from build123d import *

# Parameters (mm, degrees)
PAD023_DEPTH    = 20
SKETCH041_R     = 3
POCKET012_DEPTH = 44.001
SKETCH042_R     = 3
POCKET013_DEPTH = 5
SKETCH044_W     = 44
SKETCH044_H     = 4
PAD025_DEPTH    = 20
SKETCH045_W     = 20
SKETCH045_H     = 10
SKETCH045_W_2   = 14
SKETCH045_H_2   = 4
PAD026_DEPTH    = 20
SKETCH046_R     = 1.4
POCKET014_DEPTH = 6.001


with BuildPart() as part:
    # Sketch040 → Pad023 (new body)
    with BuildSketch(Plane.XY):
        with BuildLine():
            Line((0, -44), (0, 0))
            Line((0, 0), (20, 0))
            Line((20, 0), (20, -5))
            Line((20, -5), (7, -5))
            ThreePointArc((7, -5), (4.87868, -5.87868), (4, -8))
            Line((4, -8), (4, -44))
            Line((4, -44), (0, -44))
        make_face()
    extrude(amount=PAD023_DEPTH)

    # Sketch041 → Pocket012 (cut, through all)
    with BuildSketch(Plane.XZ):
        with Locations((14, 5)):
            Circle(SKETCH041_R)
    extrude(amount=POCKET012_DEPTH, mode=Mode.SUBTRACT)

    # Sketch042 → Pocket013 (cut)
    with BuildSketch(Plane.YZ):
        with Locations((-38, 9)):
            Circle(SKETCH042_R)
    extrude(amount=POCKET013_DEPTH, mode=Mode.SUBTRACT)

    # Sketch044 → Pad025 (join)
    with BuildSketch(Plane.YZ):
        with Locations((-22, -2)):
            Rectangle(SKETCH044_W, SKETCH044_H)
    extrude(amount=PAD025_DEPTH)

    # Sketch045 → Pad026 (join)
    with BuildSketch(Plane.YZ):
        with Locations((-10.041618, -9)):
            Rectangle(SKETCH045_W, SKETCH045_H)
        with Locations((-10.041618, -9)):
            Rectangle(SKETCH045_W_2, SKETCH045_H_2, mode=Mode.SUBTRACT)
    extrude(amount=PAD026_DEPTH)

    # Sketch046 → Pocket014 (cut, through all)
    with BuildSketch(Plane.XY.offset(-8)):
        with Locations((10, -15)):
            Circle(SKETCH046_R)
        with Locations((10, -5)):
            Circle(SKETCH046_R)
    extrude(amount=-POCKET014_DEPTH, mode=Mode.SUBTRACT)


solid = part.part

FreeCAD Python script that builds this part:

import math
import FreeCAD as App
import Part
import Sketcher

V = App.Vector

doc = App.newDocument("Part")
body = doc.addObject("PartDesign::Body", "Body")

sketch1 = body.newObject("Sketcher::SketchObject", "Sketch")
sketch1.AttachmentSupport = (doc.getObject("XY_Plane"), [""])
sketch1.MapMode = "FlatFace"
sketch1.addGeometry([
    Part.LineSegment(V(0, 0, 0), V(0, -44, 0)),
    Part.LineSegment(V(0, -44, 0), V(4, -44, 0)),
    Part.LineSegment(V(4, -44, 0), V(4, -8, 0)),
    Part.ArcOfCircle(Part.Circle(V(7, -8, 0), V(0, 0, 1), 3), math.radians(90), math.radians(180)),
    Part.LineSegment(V(7, -5, 0), V(20, -5, 0)),
    Part.LineSegment(V(20, -5, 0), V(20, 0, 0)),
    Part.LineSegment(V(20, 0, 0), V(0, 0, 0)),
], False)
sketch1.addConstraint([
    Sketcher.Constraint("Coincident", 0, 2, 1, 1),
    Sketcher.Constraint("Coincident", 1, 2, 2, 1),
    Sketcher.Constraint("Tangent", 2, 2, 3, 2),
    Sketcher.Constraint("Tangent", 3, 1, 4, 1),
    Sketcher.Constraint("Coincident", 4, 2, 5, 1),
    Sketcher.Constraint("Coincident", 5, 2, 6, 1),
    Sketcher.Constraint("Coincident", 6, 2, 0, 1),
    Sketcher.Constraint("Vertical", 0),
    Sketcher.Constraint("Horizontal", 1),
    Sketcher.Constraint("Vertical", 2),
    Sketcher.Constraint("Horizontal", 4),
    Sketcher.Constraint("Vertical", 5),
    Sketcher.Constraint("Horizontal", 6),
    Sketcher.Constraint("Coincident", 6, 2, -1, 1),
    Sketcher.Constraint("Radius", 3, 3.000001),
    Sketcher.Constraint("DistanceX", 1, 1, 1, 2, 4.0),
    Sketcher.Constraint("DistanceX", 4, 1, 4, 2, 13.0),
    Sketcher.Constraint("DistanceY", 0, 2, 0, 1, 44.0),
    Sketcher.Constraint("DistanceY", 2, 1, 2, 2, 36.0),
])
pad1 = body.newObject("PartDesign::Pad", "Pad")
pad1.Profile = sketch1
pad1.Length = 20

sketch2 = body.newObject("Sketcher::SketchObject", "Sketch001")
sketch2.AttachmentSupport = (doc.getObject("XZ_Plane"), [""])
sketch2.MapMode = "FlatFace"
sketch2.addGeometry(Part.Circle(V(14, 5, 0), V(0, 0, 1), 3), False)
sketch2.addConstraint([
    Sketcher.Constraint("Diameter", 0, 6.0),
    Sketcher.Constraint("DistanceX", -1, 1, 0, 3, 14.0),
    Sketcher.Constraint("DistanceY", -1, 1, 0, 3, 5.0),
])
pocket1 = body.newObject("PartDesign::Pocket", "Pocket")
pocket1.Profile = sketch2
pocket1.Type = "ThroughAll"
pocket1.Reversed = True

sketch3 = body.newObject("Sketcher::SketchObject", "Sketch002")
sketch3.AttachmentSupport = (doc.getObject("YZ_Plane"), [""])
sketch3.MapMode = "FlatFace"
sketch3.addGeometry(Part.Circle(V(-38, 9, 0), V(0, 0, 1), 3), False)
sketch3.addConstraint([
    Sketcher.Constraint("Diameter", 0, 6.0),
    Sketcher.Constraint("DistanceX", 0, 3, -1, 1, 38.0),
    Sketcher.Constraint("DistanceY", -1, 1, 0, 3, 9.0),
])
pocket2 = body.newObject("PartDesign::Pocket", "Pocket001")
pocket2.Profile = sketch3
pocket2.Length = 5
pocket2.Reversed = True

sketch4 = body.newObject("Sketcher::SketchObject", "Sketch003")
sketch4.AttachmentSupport = (doc.getObject("YZ_Plane"), [""])
sketch4.MapMode = "FlatFace"
sketch4.addGeometry([
    Part.LineSegment(V(-44, 0, 0), V(-44, -4, 0)),
    Part.LineSegment(V(-44, -4, 0), V(0, -4, 0)),
    Part.LineSegment(V(0, -4, 0), V(0, 0, 0)),
    Part.LineSegment(V(0, 0, 0), V(-44, 0, 0)),
], False)
sketch4.addConstraint([
    Sketcher.Constraint("Coincident", 0, 2, 1, 1),
    Sketcher.Constraint("Coincident", 1, 2, 2, 1),
    Sketcher.Constraint("Coincident", 2, 2, 3, 1),
    Sketcher.Constraint("Coincident", 3, 2, 0, 1),
    Sketcher.Constraint("Vertical", 0),
    Sketcher.Constraint("Horizontal", 1),
    Sketcher.Constraint("Vertical", 2),
    Sketcher.Constraint("Horizontal", 3),
    Sketcher.Constraint("Coincident", 2, 2, -1, 1),
    Sketcher.Constraint("DistanceX", 1, 1, 1, 2, 44.0),
    Sketcher.Constraint("DistanceY", 0, 2, 0, 1, 4.0),
])
pad2 = body.newObject("PartDesign::Pad", "Pad001")
pad2.Profile = sketch4
pad2.Length = 20

sketch5 = body.newObject("Sketcher::SketchObject", "Sketch004")
sketch5.AttachmentSupport = (doc.getObject("YZ_Plane"), [""])
sketch5.MapMode = "FlatFace"
sketch5.addGeometry([
    Part.LineSegment(V(-20, -4, 0), V(-20, -14, 0)),
    Part.LineSegment(V(-20, -14, 0), V(0, -14, 0)),
    Part.LineSegment(V(0, -14, 0), V(0, -4, 0)),
    Part.LineSegment(V(0, -4, 0), V(-20, -4, 0)),
    Part.LineSegment(V(-3, -11, 0), V(-17, -11, 0)),
    Part.LineSegment(V(-17, -11, 0), V(-17, -7, 0)),
    Part.LineSegment(V(-17, -7, 0), V(-3, -7, 0)),
    Part.LineSegment(V(-3, -7, 0), V(-3, -11, 0)),
], False)
sketch5.addConstraint([
    Sketcher.Constraint("Coincident", 0, 2, 1, 1),
    Sketcher.Constraint("Coincident", 1, 2, 2, 1),
    Sketcher.Constraint("Coincident", 2, 2, 3, 1),
    Sketcher.Constraint("Coincident", 3, 2, 0, 1),
    Sketcher.Constraint("Coincident", 4, 2, 5, 1),
    Sketcher.Constraint("Coincident", 5, 2, 6, 1),
    Sketcher.Constraint("Coincident", 6, 2, 7, 1),
    Sketcher.Constraint("Coincident", 7, 2, 4, 1),
    Sketcher.Constraint("Vertical", 0),
    Sketcher.Constraint("Horizontal", 1),
    Sketcher.Constraint("Vertical", 2),
    Sketcher.Constraint("Horizontal", 3),
    Sketcher.Constraint("Horizontal", 4),
    Sketcher.Constraint("Vertical", 5),
    Sketcher.Constraint("Horizontal", 6),
    Sketcher.Constraint("Vertical", 7),
    Sketcher.Constraint("DistanceX", 1, 1, 1, 2, 20.0),
    Sketcher.Constraint("DistanceX", 4, 2, 4, 1, 14.0),
    Sketcher.Constraint("DistanceY", 0, 2, 0, 1, 10.0),
    Sketcher.Constraint("DistanceY", 5, 1, 5, 2, 4.0),
    Sketcher.Constraint("DistanceY", 0, 2, -1, 1, 14.0),
    Sketcher.Constraint("DistanceY", 4, 2, -1, 1, 11.0),
    Sketcher.Constraint("DistanceX", 0, 2, 4, 2, 3.0),
    Sketcher.Constraint("DistanceX", 1, 2, -1, 1, 0.041618),
])
pad3 = body.newObject("PartDesign::Pad", "Pad002")
pad3.Profile = sketch5
pad3.Length = 20

sketch6 = body.newObject("Sketcher::SketchObject", "Sketch005")
sketch6.AttachmentSupport = (doc.getObject("XY_Plane"), [""])
sketch6.MapMode = "FlatFace"
sketch6.AttachmentOffset = App.Placement(V(0, 0, -8), App.Rotation())
sketch6.addGeometry([
    Part.Circle(V(10, -15, 0), V(0, 0, 1), 1.4),
    Part.Circle(V(10, -5, 0), V(0, 0, 1), 1.4),
], False)
sketch6.addConstraint([
    Sketcher.Constraint("Equal", 0, 1),
    Sketcher.Constraint("Vertical", 0, 3, 1, 3),
    Sketcher.Constraint("Diameter", 0, 2.8),
    Sketcher.Constraint("DistanceX", -1, 1, 0, 3, 10.0),
    Sketcher.Constraint("DistanceY", 0, 3, -1, 1, 15.0),
    Sketcher.Constraint("DistanceY", 1, 3, -1, 1, 5.0),
])
pocket3 = body.newObject("PartDesign::Pocket", "Pocket002")
pocket3.Profile = sketch6
pocket3.Type = "ThroughAll"

doc.recompute()
